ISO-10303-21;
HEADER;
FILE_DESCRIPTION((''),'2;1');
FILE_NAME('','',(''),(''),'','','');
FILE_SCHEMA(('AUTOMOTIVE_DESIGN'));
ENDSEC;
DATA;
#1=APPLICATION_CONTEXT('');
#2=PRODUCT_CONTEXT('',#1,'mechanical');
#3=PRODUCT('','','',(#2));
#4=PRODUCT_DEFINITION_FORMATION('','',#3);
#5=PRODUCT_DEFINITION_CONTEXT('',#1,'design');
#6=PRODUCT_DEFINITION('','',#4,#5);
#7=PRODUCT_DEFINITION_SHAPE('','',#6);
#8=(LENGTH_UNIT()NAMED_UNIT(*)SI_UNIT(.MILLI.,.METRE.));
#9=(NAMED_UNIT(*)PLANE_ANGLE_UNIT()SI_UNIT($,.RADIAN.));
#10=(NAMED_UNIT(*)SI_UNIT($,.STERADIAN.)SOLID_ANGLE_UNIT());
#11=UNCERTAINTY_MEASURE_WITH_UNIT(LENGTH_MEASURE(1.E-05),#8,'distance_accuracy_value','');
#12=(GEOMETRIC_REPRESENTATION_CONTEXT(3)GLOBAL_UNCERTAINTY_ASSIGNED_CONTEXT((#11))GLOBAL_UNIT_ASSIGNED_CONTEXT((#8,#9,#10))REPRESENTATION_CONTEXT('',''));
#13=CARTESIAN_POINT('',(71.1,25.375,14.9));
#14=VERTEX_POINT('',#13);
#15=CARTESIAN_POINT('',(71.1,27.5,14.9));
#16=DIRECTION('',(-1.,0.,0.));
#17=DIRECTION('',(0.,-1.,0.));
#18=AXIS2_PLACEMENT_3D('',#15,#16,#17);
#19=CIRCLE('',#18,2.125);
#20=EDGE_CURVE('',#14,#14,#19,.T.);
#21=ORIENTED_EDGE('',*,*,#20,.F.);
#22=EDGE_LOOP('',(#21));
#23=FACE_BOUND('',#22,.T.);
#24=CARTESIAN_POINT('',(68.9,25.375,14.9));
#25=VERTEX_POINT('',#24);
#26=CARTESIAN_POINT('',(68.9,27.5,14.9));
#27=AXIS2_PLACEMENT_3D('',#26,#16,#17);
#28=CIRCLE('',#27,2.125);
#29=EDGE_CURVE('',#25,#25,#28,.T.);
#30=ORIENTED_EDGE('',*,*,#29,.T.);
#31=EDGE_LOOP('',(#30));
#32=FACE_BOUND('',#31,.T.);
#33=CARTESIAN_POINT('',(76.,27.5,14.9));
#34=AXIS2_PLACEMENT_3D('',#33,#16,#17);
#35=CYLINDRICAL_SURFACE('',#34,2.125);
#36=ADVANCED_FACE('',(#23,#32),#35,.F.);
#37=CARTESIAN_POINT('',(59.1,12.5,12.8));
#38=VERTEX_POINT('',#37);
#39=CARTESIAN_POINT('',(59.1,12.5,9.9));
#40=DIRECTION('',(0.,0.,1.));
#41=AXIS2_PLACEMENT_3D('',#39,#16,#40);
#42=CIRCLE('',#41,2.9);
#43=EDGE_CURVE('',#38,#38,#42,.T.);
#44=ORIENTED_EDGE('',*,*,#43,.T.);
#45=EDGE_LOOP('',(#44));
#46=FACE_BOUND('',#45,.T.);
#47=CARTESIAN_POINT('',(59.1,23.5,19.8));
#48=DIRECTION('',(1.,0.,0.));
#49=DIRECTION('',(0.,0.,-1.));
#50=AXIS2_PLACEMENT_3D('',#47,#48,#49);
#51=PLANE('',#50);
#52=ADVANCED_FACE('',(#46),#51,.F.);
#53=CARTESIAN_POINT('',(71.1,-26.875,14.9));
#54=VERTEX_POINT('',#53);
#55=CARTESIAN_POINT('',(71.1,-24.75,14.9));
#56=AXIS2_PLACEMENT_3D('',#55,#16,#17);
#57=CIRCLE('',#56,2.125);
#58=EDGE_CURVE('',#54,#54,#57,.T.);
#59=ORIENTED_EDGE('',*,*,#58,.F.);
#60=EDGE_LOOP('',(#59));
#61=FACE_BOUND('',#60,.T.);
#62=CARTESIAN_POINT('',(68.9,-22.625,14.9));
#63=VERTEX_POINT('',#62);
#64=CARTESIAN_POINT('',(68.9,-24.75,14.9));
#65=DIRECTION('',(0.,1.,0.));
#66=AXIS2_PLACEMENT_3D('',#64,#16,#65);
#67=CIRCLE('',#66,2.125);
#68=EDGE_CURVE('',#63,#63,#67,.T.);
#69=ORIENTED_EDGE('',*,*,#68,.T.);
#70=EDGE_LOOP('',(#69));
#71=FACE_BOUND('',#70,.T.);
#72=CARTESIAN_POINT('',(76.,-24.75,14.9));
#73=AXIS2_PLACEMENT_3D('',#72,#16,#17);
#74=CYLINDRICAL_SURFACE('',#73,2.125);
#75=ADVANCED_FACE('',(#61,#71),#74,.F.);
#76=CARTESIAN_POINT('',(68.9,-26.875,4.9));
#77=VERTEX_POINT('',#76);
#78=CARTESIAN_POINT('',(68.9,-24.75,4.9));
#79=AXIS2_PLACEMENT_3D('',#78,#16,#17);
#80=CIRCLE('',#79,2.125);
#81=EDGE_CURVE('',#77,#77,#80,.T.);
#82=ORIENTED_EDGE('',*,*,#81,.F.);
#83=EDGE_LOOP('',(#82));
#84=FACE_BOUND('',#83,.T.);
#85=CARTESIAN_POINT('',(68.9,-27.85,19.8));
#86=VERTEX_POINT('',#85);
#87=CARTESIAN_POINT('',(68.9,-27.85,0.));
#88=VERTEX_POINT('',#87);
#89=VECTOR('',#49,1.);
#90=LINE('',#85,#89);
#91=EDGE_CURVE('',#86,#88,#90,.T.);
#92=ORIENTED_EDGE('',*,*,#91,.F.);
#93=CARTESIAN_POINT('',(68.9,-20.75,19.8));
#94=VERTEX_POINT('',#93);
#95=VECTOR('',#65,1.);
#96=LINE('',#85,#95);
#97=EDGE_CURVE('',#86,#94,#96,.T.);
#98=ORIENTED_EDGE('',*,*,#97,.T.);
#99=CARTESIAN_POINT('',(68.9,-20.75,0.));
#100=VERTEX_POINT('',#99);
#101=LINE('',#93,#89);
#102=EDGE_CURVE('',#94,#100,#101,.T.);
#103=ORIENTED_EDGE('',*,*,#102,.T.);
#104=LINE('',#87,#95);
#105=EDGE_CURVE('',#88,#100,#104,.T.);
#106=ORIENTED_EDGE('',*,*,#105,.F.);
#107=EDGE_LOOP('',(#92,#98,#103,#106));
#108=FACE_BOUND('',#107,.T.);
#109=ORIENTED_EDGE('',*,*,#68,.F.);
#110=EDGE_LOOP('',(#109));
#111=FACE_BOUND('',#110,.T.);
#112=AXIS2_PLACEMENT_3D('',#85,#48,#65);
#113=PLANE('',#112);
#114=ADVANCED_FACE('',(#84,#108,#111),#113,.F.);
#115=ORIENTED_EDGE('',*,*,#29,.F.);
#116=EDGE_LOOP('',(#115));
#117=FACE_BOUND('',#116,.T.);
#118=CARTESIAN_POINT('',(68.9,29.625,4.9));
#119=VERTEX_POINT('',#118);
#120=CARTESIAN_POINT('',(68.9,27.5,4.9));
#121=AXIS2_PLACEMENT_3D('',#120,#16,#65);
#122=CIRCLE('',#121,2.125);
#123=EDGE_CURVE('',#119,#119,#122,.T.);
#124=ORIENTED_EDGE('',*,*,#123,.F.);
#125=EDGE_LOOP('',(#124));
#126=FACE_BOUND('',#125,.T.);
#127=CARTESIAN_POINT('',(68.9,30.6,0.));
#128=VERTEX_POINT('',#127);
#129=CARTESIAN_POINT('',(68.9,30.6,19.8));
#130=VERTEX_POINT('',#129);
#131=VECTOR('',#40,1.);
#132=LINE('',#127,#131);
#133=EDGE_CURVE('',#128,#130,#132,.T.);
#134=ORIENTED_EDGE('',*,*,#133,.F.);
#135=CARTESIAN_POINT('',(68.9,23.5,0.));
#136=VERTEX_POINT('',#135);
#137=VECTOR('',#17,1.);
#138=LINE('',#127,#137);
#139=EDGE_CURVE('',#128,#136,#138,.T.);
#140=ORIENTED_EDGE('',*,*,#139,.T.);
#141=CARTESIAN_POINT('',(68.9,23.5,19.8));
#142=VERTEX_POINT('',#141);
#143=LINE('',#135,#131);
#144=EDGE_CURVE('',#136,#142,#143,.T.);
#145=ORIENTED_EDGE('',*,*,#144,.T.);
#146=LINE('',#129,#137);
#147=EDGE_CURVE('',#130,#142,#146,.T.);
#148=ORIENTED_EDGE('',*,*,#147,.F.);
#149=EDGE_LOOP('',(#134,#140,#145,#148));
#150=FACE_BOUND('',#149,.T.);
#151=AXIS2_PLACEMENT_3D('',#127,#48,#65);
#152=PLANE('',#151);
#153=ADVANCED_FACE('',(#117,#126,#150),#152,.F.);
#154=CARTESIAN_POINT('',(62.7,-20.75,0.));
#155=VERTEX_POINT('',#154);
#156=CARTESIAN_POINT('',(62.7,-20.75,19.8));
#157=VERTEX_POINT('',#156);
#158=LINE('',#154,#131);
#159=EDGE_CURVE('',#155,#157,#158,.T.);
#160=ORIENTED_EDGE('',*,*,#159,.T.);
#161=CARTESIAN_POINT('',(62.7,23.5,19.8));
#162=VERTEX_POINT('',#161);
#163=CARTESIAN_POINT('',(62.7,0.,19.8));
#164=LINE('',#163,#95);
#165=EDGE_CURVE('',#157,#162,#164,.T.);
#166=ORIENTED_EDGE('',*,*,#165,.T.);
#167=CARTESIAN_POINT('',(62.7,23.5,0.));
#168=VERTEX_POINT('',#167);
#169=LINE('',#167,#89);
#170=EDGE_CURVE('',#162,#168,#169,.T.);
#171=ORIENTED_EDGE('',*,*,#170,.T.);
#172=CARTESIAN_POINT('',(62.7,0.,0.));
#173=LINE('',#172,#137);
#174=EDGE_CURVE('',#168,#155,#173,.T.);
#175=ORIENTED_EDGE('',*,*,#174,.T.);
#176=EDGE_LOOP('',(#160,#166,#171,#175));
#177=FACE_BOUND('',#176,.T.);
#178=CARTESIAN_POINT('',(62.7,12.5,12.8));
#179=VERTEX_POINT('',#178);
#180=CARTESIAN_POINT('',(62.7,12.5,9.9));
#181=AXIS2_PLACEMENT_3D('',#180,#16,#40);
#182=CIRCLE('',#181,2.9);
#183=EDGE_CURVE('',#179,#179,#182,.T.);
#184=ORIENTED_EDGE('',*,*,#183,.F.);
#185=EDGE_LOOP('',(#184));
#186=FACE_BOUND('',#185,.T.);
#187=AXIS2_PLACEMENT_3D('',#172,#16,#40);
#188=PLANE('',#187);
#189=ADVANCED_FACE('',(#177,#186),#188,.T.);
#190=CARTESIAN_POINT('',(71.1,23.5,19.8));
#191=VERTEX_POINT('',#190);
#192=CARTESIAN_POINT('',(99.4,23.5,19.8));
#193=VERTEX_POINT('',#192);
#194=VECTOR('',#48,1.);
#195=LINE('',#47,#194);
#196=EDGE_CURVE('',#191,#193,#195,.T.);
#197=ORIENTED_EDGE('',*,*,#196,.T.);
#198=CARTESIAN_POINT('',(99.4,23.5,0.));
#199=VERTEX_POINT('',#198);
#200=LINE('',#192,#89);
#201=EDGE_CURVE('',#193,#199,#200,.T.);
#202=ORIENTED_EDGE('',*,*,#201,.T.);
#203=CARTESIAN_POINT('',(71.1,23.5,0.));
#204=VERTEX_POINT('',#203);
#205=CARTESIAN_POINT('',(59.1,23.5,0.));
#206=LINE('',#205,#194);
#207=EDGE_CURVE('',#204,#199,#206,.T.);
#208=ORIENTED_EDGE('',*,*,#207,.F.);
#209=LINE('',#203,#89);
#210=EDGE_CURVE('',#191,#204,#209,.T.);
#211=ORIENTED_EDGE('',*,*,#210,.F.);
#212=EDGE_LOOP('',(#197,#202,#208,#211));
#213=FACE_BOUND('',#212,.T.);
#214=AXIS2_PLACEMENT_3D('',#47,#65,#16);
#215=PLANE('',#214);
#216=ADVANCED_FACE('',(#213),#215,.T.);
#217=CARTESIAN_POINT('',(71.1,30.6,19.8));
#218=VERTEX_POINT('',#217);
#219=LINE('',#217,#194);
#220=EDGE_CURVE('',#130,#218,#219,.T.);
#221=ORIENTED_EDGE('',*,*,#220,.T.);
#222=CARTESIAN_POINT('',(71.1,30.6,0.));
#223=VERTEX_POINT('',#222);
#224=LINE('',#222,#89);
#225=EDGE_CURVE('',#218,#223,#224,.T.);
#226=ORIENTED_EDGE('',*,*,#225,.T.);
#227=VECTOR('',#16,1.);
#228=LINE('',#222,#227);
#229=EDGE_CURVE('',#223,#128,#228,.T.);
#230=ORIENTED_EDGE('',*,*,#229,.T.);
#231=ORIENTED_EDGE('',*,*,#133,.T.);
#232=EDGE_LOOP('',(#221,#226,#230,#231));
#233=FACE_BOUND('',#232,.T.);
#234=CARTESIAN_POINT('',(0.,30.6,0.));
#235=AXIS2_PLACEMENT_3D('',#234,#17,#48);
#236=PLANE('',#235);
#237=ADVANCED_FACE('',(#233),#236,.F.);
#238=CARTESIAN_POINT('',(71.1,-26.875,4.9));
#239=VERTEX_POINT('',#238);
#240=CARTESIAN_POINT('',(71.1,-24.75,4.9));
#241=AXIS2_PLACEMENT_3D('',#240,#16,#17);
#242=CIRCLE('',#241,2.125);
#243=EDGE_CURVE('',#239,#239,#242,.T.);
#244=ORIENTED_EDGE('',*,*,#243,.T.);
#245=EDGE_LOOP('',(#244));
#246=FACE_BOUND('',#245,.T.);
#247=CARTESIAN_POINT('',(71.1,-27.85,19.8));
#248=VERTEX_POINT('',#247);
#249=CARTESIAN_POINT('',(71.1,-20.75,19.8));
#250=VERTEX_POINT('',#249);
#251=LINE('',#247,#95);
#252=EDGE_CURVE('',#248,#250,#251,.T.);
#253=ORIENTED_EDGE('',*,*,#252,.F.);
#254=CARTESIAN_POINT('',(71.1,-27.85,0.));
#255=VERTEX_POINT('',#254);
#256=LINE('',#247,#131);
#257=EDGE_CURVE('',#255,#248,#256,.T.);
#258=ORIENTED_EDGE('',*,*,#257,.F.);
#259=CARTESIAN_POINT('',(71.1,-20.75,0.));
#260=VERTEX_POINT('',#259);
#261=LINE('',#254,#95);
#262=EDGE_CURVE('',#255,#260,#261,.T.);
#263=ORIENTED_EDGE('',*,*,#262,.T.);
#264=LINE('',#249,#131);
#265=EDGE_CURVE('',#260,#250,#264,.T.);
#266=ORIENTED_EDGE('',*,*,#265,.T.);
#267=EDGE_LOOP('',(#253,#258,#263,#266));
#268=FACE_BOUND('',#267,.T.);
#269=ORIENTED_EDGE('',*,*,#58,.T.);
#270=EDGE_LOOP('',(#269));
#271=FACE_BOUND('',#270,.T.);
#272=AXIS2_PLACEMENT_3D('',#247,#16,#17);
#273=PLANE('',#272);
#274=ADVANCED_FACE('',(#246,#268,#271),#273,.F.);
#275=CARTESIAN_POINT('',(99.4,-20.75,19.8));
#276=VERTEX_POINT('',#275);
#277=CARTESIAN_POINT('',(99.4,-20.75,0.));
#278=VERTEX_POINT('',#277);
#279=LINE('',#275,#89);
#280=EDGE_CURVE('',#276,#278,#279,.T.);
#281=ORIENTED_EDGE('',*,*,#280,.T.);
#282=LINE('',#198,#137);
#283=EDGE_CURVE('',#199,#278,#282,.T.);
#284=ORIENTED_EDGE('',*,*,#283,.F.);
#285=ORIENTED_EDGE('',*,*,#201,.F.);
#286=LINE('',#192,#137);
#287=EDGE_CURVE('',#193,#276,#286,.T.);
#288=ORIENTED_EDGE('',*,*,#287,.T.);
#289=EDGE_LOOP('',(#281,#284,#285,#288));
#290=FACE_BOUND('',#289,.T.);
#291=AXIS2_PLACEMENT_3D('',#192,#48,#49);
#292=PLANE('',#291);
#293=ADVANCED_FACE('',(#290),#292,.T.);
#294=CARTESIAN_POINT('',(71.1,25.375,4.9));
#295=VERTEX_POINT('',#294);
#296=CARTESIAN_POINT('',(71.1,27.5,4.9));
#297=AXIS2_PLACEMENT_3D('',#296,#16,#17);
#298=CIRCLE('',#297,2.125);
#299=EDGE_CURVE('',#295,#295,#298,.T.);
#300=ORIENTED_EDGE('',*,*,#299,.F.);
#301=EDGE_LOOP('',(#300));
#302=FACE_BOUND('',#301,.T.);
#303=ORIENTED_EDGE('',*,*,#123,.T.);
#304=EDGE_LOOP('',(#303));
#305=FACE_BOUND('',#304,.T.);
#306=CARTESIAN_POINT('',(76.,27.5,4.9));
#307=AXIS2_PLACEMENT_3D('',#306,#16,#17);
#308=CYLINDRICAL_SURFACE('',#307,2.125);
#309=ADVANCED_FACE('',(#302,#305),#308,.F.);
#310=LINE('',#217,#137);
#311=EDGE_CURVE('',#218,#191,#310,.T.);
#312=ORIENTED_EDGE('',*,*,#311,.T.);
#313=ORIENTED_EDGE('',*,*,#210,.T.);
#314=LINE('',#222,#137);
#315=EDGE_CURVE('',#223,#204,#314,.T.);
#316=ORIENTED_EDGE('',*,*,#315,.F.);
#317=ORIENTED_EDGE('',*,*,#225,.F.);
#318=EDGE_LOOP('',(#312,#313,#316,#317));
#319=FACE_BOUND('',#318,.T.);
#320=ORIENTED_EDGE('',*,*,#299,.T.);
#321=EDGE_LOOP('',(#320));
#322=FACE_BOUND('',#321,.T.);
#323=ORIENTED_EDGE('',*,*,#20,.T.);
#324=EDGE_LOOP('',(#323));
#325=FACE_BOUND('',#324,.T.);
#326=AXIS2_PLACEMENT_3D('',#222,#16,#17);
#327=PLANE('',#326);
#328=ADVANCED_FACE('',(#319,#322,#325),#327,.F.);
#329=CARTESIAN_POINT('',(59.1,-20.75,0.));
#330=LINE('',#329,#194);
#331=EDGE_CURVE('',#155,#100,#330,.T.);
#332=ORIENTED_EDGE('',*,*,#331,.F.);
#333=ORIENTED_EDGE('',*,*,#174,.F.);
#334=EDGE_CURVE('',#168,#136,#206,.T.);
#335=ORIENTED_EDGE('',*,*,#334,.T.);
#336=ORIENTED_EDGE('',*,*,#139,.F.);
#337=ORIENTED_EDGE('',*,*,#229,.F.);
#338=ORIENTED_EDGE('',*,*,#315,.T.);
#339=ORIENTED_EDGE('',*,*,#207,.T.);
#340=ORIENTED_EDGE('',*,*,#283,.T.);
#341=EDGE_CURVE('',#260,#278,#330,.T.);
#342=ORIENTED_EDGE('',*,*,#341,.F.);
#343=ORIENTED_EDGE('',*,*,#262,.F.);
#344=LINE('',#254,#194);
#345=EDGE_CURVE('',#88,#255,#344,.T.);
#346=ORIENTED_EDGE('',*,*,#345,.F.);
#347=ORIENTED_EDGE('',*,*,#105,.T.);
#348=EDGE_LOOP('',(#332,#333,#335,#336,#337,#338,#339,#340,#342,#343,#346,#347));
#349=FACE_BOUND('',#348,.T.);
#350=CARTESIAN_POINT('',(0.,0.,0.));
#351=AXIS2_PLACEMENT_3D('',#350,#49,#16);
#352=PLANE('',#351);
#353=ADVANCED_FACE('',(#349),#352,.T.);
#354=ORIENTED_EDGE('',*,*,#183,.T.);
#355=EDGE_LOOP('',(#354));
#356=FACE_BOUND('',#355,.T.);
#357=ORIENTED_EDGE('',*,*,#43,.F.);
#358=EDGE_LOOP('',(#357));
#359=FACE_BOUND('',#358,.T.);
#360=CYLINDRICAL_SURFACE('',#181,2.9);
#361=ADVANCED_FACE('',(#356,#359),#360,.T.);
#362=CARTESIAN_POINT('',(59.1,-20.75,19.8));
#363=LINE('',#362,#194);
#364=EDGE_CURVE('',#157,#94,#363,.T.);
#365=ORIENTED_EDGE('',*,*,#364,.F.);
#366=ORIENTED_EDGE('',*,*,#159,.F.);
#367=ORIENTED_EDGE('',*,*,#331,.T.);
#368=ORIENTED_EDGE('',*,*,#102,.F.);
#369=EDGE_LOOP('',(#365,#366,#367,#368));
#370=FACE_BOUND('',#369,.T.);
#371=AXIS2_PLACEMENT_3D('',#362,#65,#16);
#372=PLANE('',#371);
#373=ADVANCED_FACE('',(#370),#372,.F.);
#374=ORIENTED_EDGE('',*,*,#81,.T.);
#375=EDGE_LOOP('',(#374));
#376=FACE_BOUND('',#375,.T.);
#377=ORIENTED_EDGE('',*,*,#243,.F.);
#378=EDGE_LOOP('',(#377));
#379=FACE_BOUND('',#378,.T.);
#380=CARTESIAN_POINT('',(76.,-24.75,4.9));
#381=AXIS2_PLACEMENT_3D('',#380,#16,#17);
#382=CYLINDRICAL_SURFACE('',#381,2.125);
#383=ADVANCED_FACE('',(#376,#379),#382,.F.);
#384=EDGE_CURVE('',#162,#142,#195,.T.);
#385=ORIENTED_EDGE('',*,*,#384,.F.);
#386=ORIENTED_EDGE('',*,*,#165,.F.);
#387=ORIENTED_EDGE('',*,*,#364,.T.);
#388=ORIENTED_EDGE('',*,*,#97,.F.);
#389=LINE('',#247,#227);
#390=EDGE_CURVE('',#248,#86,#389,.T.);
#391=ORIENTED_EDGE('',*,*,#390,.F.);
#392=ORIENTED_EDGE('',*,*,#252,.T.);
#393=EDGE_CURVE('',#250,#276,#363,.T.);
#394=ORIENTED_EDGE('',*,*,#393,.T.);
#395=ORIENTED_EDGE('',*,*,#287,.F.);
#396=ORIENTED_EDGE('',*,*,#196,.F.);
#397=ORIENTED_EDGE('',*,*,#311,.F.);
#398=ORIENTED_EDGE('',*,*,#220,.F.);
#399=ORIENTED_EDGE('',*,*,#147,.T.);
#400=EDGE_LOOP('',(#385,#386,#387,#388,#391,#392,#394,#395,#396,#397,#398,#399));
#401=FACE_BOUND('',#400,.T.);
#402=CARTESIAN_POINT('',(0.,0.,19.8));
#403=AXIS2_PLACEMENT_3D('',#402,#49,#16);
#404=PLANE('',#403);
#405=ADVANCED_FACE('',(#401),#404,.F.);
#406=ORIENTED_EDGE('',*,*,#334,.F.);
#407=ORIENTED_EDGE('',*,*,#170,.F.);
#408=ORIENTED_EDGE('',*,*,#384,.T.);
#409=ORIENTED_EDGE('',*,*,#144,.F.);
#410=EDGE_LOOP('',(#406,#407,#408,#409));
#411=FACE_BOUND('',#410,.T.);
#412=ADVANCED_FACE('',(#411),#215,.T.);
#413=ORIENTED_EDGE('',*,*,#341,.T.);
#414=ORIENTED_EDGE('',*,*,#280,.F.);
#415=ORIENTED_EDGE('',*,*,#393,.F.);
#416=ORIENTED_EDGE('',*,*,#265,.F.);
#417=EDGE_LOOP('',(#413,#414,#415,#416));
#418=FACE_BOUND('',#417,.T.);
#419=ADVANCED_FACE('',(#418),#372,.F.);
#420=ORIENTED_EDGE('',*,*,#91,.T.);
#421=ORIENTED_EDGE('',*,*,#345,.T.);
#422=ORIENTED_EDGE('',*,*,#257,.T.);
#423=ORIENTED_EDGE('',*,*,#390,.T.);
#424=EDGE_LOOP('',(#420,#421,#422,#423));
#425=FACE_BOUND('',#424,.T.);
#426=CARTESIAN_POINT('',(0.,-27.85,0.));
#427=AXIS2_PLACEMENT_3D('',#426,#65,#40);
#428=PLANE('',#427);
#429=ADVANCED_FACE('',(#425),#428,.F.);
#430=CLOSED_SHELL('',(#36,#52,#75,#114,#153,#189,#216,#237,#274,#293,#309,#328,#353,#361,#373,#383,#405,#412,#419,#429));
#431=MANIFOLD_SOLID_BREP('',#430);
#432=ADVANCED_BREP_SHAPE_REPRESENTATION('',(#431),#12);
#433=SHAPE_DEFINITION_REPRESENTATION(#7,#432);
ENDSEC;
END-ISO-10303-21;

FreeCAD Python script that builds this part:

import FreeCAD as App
import Part
import Sketcher
from FreeCAD import Vector

doc = App.newDocument("Part")
body = doc.addObject("PartDesign::Body", "Body")

sketch1 = doc.addObject("Sketcher::SketchObject", "Sketch")
body.addObject(sketch1)
sketch1.AttachmentSupport = (doc.XY_Plane, [""])
sketch1.MapMode = "FlatFace"
sketch1.addGeometry([
    Part.LineSegment(Vector(99, -21, 0), Vector(99, 24, 0)),
    Part.LineSegment(Vector(99, 24, 0), Vector(59, 24, 0)),
    Part.LineSegment(Vector(59, 24, 0), Vector(59, -21, 0)),
    Part.LineSegment(Vector(59, -21, 0), Vector(99, -21, 0)),
], False)
sketch1.addConstraint([
    Sketcher.Constraint("Coincident", 0, 2, 1, 1),
    Sketcher.Constraint("Coincident", 1, 2, 2, 1),
    Sketcher.Constraint("Coincident", 2, 2, 3, 1),
    Sketcher.Constraint("Coincident", 3, 2, 0, 1),
    Sketcher.Constraint("Vertical", 0),
    Sketcher.Constraint("Horizontal", 1),
    Sketcher.Constraint("Vertical", 2),
    Sketcher.Constraint("Horizontal", 3),
    Sketcher.Constraint("DistanceX", 1, 2, 1, 1, 40.3),
    Sketcher.Constraint("DistanceY", 0, 1, 0, 2, 44.25),
    Sketcher.Constraint("DistanceX", -1, 1, 0, 2, 99.4),
    Sketcher.Constraint("DistanceY", -1, 1, 0, 2, 23.5),
])
pad1 = doc.addObject("PartDesign::Pad", "Pad")
body.addObject(pad1)
pad1.Profile = sketch1
pad1.Length = 19.8

sketch2 = doc.addObject("Sketcher::SketchObject", "Sketch001")
body.addObject(sketch2)
sketch2.AttachmentSupport = (doc.YZ_Plane, [""])
sketch2.MapMode = "FlatFace"
sketch2.AttachmentOffset = App.Placement(Vector(0, 0, 59.1), App.Rotation())
sketch2.addGeometry([
    Part.LineSegment(Vector(23.5, 0, 0), Vector(-20.8, 0, 0)),
    Part.LineSegment(Vector(-20.8, 0, 0), Vector(-20.8, 19.8, 0)),
    Part.LineSegment(Vector(-20.8, 19.8, 0), Vector(23.5, 19.8, 0)),
    Part.LineSegment(Vector(23.5, 19.8, 0), Vector(23.5, 0, 0)),
    Part.Circle(Vector(12.5, 9.9, 0), Vector(0, 0, 1), 2.9),
], False)
sketch2.addConstraint([
    Sketcher.Constraint("Coincident", 0, 2, 1, 1),
    Sketcher.Constraint("Coincident", 1, 2, 2, 1),
    Sketcher.Constraint("Coincident", 2, 2, 3, 1),
    Sketcher.Constraint("Coincident", 3, 2, 0, 1),
    Sketcher.Constraint("Horizontal", 0),
    Sketcher.Constraint("Vertical", 1),
    Sketcher.Constraint("Horizontal", 2),
    Sketcher.Constraint("Vertical", 3),
    Sketcher.Constraint("PointOnObject", 0, 2, -1),
    Sketcher.Constraint("Diameter", 4, 5.8),
    Sketcher.Constraint("DistanceY", 1, 1, 1, 2, 19.8),
    Sketcher.Constraint("DistanceX", 4, 3, 2, 2, 11.0),
    Sketcher.Constraint("DistanceX", 0, 2, 0, 1, 44.25),
    Sketcher.Constraint("DistanceX", -1, 1, 4, 3, 12.5),
    Sketcher.Constraint("DistanceY", -1, 1, 4, 3, 9.9),
])
pocket1 = doc.addObject("PartDesign::Pocket", "Pocket")
body.addObject(pocket1)
pocket1.Profile = sketch2
pocket1.Length = 3.6
pocket1.Reversed = True

sketch3 = doc.addObject("Sketcher::SketchObject", "Sketch002")
body.addObject(sketch3)
sketch3.AttachmentSupport = (doc.XZ_Plane, [""])
sketch3.MapMode = "FlatFace"
sketch3.AttachmentOffset = App.Placement(Vector(0, 0, -23.5), App.Rotation())
sketch3.addGeometry([
    Part.LineSegment(Vector(68.9, 0, 0), Vector(68.9, 19.8, 0)),
    Part.LineSegment(Vector(68.9, 19.8, 0), Vector(71.1, 19.8, 0)),
    Part.LineSegment(Vector(71.1, 19.8, 0), Vector(71.1, 0, 0)),
    Part.LineSegment(Vector(71.1, 0, 0), Vector(68.9, 0, 0)),
], False)
sketch3.addConstraint([
    Sketcher.Constraint("Coincident", 0, 2, 1, 1),
    Sketcher.Constraint("Coincident", 1, 2, 2, 1),
    Sketcher.Constraint("Coincident", 2, 2, 3, 1),
    Sketcher.Constraint("Coincident", 3, 2, 0, 1),
    Sketcher.Constraint("Vertical", 0),
    Sketcher.Constraint("Horizontal", 1),
    Sketcher.Constraint("Vertical", 2),
    Sketcher.Constraint("Horizontal", 3),
    Sketcher.Constraint("PointOnObject", 2, 2, -1),
    Sketcher.Constraint("DistanceX", 1, 1, 1, 2, 2.2),
    Sketcher.Constraint("DistanceY", 0, 1, 0, 2, 19.8),
    Sketcher.Constraint("DistanceX", -1, 1, 0, 2, 68.9),
])
pad2 = doc.addObject("PartDesign::Pad", "Pad001")
body.addObject(pad2)
pad2.Profile = sketch3
pad2.Length = 7.1
pad2.Reversed = True

sketch4 = doc.addObject("Sketcher::SketchObject", "Sketch003")
body.addObject(sketch4)
sketch4.AttachmentSupport = (doc.XZ_Plane, [""])
sketch4.MapMode = "FlatFace"
sketch4.AttachmentOffset = App.Placement(Vector(0, 0, 20.75), App.Rotation())
sketch4.addGeometry([
    Part.LineSegment(Vector(68.9, 19.8, 0), Vector(68.9, 0, 0)),
    Part.LineSegment(Vector(68.9, 0, 0), Vector(71.1, 0, 0)),
    Part.LineSegment(Vector(71.1, 0, 0), Vector(71.1, 19.8, 0)),
    Part.LineSegment(Vector(71.1, 19.8, 0), Vector(68.9, 19.8, 0)),
], False)
sketch4.addConstraint([
    Sketcher.Constraint("Coincident", 0, 2, 1, 1),
    Sketcher.Constraint("Coincident", 1, 2, 2, 1),
    Sketcher.Constraint("Coincident", 2, 2, 3, 1),
    Sketcher.Constraint("Coincident", 3, 2, 0, 1),
    Sketcher.Constraint("Vertical", 0),
    Sketcher.Constraint("Horizontal", 1),
    Sketcher.Constraint("Vertical", 2),
    Sketcher.Constraint("Horizontal", 3),
    Sketcher.Constraint("PointOnObject", 0, 2, -1),
    Sketcher.Constraint("DistanceX", 1, 1, 1, 2, 2.2),
    Sketcher.Constraint("DistanceY", 0, 2, 0, 1, 19.8),
    Sketcher.Constraint("DistanceX", -1, 1, 0, 2, 68.9),
])
pad3 = doc.addObject("PartDesign::Pad", "Pad002")
body.addObject(pad3)
pad3.Profile = sketch4
pad3.Length = 7.1

sketch5 = doc.addObject("Sketcher::SketchObject", "Sketch004")
body.addObject(sketch5)
sketch5.AttachmentSupport = (doc.YZ_Plane, [""])
sketch5.MapMode = "FlatFace"
sketch5.AttachmentOffset = App.Placement(Vector(0, 0, 68.9), App.Rotation())
sketch5.addGeometry([
    Part.Circle(Vector(27.5, 14.9, 0), Vector(0, 0, 1), 2.1),
    Part.Circle(Vector(27.5, 4.9, 0), Vector(0, 0, 1), 2.1),
    Part.Circle(Vector(-24.8, 14.9, 0), Vector(0, 0, 1), 2.1),
    Part.Circle(Vector(-24.8, 4.9, 0), Vector(0, 0, 1), 2.1),
], False)
sketch5.addConstraint([
    Sketcher.Constraint("Equal", 0, 1),
    Sketcher.Constraint("Equal", 1, 2),
    Sketcher.Constraint("Equal", 2, 3),
    Sketcher.Constraint("Horizontal", 0, 3, 2, 3),
    Sketcher.Constraint("Horizontal", 1, 3, 3, 3),
    Sketcher.Constraint("Vertical", 0, 3, 1, 3),
    Sketcher.Constraint("Vertical", 2, 3, 3, 3),
    Sketcher.Constraint("Diameter", 0, 4.25),
    Sketcher.Constraint("DistanceY", 1, 3, 0, 3, 10.0),
    Sketcher.Constraint("DistanceX", -1, 1, 0, 3, 27.5),
    Sketcher.Constraint("DistanceY", -1, 1, 0, 3, 14.9),
    Sketcher.Constraint("DistanceX", 2, 3, -1, 1, 24.75),
])
pocket2 = doc.addObject("PartDesign::Pocket", "Pocket001")
body.addObject(pocket2)
pocket2.Profile = sketch5
pocket2.Length = 7.1
pocket2.Reversed = True

doc.recompute()
